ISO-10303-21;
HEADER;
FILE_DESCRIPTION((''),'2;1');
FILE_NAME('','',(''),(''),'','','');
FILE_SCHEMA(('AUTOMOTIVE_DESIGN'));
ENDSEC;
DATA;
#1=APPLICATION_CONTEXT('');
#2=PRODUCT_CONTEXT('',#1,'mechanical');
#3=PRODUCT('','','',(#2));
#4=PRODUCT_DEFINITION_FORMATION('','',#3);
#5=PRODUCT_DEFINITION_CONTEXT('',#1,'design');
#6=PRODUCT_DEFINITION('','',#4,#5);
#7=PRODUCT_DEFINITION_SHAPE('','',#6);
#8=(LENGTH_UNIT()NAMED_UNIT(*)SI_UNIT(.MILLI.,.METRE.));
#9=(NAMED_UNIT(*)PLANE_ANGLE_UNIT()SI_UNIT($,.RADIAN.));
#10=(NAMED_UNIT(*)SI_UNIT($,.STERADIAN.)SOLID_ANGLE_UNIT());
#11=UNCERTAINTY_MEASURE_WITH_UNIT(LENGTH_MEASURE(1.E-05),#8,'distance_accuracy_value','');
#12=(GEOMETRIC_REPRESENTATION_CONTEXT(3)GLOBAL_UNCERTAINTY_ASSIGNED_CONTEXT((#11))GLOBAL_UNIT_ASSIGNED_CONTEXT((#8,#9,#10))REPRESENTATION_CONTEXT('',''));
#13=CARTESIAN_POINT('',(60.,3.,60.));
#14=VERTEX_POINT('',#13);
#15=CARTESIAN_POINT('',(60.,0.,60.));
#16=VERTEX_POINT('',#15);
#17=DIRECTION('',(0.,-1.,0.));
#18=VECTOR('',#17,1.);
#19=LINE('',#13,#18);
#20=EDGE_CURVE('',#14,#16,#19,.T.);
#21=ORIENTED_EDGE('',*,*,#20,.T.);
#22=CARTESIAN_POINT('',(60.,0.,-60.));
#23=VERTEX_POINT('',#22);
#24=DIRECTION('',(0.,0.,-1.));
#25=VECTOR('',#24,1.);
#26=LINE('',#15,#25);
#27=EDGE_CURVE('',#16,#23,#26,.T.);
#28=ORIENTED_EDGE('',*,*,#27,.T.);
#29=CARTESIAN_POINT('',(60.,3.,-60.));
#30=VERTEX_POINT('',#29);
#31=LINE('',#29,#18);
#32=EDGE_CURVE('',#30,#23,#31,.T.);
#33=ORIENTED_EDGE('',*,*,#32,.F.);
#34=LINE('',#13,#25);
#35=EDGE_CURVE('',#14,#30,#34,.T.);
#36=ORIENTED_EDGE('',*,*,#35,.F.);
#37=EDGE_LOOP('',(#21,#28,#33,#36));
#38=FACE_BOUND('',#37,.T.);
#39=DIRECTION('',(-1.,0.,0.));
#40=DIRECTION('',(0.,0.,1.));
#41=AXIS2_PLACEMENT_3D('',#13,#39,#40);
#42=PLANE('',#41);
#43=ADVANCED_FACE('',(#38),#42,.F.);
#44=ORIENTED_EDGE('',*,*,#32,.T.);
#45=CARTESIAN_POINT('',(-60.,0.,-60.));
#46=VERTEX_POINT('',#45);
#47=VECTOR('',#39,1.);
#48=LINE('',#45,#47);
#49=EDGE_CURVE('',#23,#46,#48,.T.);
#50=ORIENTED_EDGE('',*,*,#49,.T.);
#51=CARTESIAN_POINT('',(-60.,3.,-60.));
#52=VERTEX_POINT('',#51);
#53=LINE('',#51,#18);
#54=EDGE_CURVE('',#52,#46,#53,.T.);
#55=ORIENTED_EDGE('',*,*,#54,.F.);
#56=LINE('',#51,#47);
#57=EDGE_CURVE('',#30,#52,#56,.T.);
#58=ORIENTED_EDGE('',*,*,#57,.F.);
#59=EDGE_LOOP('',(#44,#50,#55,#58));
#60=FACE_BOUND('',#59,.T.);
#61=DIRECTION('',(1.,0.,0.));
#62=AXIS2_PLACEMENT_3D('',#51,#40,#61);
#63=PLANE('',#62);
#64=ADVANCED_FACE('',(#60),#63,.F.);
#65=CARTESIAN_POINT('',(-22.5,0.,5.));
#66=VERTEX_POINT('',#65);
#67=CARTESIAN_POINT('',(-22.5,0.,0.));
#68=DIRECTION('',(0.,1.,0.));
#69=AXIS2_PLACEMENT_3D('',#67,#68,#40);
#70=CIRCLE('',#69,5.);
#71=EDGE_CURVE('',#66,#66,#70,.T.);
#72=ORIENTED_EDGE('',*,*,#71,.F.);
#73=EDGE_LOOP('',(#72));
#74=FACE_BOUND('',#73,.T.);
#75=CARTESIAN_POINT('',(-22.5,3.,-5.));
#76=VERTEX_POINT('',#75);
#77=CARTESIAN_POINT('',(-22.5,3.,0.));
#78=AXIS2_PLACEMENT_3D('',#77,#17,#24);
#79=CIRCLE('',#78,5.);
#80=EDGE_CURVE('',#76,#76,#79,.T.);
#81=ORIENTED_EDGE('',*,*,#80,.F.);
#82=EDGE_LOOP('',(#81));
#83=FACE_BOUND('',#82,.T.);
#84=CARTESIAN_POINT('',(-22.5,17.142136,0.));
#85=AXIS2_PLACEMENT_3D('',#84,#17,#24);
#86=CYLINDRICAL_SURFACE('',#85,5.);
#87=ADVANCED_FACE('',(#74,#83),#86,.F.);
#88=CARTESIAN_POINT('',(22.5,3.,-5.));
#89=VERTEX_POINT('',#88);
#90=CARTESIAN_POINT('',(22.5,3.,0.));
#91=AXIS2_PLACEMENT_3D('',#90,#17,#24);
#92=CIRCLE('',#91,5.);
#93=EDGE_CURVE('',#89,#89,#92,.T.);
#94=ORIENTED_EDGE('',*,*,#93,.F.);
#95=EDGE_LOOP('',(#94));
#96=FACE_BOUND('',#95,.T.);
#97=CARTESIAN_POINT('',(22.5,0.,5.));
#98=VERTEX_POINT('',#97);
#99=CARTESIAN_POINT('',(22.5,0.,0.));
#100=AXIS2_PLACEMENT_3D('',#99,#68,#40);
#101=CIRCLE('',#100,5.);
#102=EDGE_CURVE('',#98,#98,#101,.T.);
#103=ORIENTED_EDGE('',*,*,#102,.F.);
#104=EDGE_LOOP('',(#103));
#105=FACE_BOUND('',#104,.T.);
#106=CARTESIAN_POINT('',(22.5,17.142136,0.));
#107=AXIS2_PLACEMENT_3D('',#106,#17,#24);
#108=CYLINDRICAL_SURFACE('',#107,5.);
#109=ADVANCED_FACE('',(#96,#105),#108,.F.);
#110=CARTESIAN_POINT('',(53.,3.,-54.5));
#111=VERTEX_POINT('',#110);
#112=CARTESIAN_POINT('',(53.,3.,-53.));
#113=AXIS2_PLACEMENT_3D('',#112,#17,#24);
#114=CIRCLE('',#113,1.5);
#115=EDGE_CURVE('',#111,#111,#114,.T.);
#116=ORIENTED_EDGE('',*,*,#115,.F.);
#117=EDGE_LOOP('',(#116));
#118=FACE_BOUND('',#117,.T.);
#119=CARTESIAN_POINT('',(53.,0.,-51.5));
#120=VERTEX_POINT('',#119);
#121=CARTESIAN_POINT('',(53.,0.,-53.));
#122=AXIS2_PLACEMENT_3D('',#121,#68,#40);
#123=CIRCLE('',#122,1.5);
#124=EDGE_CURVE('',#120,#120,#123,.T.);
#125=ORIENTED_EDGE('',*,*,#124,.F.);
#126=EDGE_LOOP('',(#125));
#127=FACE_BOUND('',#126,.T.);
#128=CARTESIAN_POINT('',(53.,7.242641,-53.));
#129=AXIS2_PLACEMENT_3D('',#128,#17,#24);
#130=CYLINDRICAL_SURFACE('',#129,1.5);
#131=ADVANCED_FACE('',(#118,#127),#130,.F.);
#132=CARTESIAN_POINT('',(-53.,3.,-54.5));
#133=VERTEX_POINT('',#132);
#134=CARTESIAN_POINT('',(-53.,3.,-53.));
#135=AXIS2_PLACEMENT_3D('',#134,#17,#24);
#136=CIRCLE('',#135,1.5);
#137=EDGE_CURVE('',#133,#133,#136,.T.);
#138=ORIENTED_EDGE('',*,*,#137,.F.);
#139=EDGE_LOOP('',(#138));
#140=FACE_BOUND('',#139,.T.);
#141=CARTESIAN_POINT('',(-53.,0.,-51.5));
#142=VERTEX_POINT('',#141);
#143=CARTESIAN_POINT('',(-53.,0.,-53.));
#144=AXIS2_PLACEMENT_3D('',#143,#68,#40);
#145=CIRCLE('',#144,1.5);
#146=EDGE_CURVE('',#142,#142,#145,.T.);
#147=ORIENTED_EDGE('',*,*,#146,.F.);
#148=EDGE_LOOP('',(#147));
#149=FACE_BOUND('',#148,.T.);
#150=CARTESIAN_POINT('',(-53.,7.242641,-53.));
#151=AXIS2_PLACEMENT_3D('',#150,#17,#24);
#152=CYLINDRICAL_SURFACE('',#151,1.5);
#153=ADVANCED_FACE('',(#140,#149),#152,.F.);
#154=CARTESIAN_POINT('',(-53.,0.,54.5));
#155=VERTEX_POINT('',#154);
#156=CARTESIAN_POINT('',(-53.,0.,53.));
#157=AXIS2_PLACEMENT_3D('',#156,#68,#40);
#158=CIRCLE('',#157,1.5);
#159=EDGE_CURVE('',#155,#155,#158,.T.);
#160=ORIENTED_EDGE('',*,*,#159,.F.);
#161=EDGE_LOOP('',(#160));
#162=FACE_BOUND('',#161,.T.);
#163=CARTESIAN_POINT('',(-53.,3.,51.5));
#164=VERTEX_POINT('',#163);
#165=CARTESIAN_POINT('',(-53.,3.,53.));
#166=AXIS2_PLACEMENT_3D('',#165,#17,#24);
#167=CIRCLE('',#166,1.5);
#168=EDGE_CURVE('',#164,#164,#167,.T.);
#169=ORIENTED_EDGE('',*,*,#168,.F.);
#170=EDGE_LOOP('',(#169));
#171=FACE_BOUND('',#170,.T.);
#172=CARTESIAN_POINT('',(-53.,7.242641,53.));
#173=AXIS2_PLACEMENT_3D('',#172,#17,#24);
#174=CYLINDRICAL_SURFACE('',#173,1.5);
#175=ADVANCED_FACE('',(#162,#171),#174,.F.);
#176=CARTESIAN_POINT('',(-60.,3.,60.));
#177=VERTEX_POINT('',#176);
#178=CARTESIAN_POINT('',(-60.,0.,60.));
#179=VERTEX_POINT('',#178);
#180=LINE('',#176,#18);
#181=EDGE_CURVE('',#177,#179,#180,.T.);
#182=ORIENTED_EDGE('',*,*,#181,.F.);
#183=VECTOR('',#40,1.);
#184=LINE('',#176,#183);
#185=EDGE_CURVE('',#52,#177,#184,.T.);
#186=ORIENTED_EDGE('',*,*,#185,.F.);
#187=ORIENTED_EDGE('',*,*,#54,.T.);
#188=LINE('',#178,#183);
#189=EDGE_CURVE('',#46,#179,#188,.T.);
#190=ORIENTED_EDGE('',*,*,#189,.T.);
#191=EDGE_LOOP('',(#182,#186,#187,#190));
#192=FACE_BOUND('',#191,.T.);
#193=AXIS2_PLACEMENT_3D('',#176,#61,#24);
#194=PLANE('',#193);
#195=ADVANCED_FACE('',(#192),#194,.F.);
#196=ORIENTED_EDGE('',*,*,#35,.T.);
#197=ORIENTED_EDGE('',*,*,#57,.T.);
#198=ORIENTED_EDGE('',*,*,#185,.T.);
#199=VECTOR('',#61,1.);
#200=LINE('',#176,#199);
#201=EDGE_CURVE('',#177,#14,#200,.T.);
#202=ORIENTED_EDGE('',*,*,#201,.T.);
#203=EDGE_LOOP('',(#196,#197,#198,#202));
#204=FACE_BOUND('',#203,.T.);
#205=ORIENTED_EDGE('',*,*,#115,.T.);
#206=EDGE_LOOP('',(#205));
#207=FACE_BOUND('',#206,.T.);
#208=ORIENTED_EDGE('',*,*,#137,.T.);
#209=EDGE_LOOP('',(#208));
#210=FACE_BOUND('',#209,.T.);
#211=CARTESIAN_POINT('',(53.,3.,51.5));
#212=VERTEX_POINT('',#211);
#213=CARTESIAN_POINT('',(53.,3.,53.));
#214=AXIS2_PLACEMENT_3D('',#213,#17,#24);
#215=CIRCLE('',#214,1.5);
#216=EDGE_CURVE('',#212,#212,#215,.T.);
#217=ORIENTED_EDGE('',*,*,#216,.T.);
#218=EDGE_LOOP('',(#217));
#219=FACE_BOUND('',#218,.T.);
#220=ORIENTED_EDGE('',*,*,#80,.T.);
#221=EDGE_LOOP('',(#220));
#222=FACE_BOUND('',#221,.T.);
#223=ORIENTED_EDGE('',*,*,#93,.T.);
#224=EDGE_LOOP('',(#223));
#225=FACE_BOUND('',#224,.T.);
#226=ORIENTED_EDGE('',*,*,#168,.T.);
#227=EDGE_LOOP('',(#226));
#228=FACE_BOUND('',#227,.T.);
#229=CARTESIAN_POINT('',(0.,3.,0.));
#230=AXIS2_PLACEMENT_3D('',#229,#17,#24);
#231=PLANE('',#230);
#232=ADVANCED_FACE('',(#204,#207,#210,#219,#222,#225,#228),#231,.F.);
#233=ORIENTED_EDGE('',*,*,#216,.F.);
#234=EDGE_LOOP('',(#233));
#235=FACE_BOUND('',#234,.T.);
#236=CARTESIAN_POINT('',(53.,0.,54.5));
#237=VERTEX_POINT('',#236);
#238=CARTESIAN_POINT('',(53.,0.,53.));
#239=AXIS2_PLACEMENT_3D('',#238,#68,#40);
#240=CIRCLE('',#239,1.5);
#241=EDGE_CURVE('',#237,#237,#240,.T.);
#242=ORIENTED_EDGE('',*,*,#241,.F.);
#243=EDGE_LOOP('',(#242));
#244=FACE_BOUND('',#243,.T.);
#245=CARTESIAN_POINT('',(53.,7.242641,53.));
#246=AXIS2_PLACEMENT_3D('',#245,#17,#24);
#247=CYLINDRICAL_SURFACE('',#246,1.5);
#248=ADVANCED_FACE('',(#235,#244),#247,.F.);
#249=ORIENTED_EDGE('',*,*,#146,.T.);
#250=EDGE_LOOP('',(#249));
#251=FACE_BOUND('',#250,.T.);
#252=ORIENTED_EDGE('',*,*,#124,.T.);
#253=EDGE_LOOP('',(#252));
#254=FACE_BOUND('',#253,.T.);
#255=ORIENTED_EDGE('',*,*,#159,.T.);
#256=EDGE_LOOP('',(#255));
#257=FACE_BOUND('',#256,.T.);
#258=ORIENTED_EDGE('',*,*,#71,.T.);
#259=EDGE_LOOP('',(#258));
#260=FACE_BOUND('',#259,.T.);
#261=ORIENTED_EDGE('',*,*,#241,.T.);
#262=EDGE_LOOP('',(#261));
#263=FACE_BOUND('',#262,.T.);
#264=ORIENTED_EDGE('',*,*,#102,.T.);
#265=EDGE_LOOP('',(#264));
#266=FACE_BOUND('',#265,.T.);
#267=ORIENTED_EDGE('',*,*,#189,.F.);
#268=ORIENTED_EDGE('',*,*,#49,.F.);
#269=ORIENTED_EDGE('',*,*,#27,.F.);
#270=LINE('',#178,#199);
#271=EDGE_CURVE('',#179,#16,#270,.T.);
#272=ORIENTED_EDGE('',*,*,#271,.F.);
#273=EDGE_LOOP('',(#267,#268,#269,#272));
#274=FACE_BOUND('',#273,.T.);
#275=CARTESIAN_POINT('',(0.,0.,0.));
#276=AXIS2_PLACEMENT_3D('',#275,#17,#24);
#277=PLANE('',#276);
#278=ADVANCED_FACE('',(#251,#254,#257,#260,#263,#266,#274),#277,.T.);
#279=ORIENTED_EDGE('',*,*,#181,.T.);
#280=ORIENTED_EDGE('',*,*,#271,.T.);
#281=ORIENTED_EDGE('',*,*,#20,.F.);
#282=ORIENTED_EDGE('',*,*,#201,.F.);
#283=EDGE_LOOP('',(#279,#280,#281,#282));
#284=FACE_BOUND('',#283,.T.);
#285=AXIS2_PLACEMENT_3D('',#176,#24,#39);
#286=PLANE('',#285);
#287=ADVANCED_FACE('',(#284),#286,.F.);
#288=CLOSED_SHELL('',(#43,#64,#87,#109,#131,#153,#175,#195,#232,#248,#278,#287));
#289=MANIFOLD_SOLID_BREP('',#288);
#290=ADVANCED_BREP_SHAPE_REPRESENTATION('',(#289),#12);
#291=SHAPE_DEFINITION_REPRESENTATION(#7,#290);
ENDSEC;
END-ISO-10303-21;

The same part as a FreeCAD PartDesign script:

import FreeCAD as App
import Part
import Sketcher
from FreeCAD import Vector


def add_polygon(sketch, points):
    """Adds a closed chain of lines whose ends are joined by coincident constraints."""
    first, n = sketch.GeometryCount, len(points)
    for a, b in zip(points, points[1:] + points[:1]):
        sketch.addGeometry(Part.LineSegment(App.Vector(*a, 0), App.Vector(*b, 0)), False)
    for i in range(n):
        sketch.addConstraint(Sketcher.Constraint("Coincident", first + i, 2, first + (i + 1) % n, 1))

doc = App.newDocument("Part")
params = doc.addObject("Spreadsheet::Sheet", "Params")
for row, (alias, value) in enumerate([
    ("sketch1_width", "120 mm"),
    ("pad1_length", "3 mm"),
    ("sketch2_diameter", "10 mm"),
    ("pocket1_length", "3 mm"),
    ("sketch3_diameter", "3 mm"),
    ("pocket2_length", "3 mm"),
], start=1):
    params.set(f"A{row}", alias)
    params.set(f"B{row}", "=" + value)
    params.setAlias(f"B{row}", alias)

body = doc.addObject("PartDesign::Body", "Body")

sketch1 = body.newObject("Sketcher::SketchObject", "Sketch")
sketch1.AttachmentSupport = (doc.getObject("XZ_Plane"), [""])
sketch1.MapMode = "FlatFace"
add_polygon(sketch1, [(-60, -60), (-60, 60), (60, 60), (60, -60)])
sketch1.addConstraint(Sketcher.Constraint("Vertical", 0))
sketch1.addConstraint(Sketcher.Constraint("Horizontal", 1))
sketch1.addConstraint(Sketcher.Constraint("Vertical", 2))
sketch1.addConstraint(Sketcher.Constraint("Horizontal", 3))
sketch1.addConstraint(Sketcher.Constraint("Symmetric", 0, 2, 2, 2, -1, 1))
sketch1.addConstraint(Sketcher.Constraint("Equal", 3, 0))
sketch1.addConstraint(Sketcher.Constraint("DistanceX", 1, 1, 1, 2, 120.0))
sketch1.setExpression("Constraints[10]", "Params.sketch1_width")
pad1 = body.newObject("PartDesign::Pad", "Pad")
pad1.Profile = sketch1
pad1.setExpression("Length", "Params.pad1_length")
pad1.Reversed = True

sketch2 = body.newObject("Sketcher::SketchObject", "Sketch001")
sketch2.AttachmentSupport = (doc.getObject("XZ_Plane"), [""])
sketch2.MapMode = "FlatFace"
sketch2.addGeometry(Part.Circle(Vector(-22, 0, 0), Vector(0, 0, 1), 5), False)
sketch2.addGeometry(Part.Circle(Vector(22, 0, 0), Vector(0, 0, 1), 5), False)
sketch2.addConstraint(Sketcher.Constraint("Equal", 0, 1))
sketch2.addConstraint(Sketcher.Constraint("Symmetric", 0, 3, 1, 3, -1, 1))
sketch2.addConstraint(Sketcher.Constraint("PointOnObject", 0, 3, -1))
sketch2.addConstraint(Sketcher.Constraint("Diameter", 0, 10.0))
sketch2.addConstraint(Sketcher.Constraint("DistanceX", 0, 3, 1, 3, 45.0))
sketch2.setExpression("Constraints[3]", "Params.sketch2_diameter")
pocket1 = body.newObject("PartDesign::Pocket", "Pocket")
pocket1.Profile = sketch2
pocket1.setExpression("Length", "Params.pocket1_length")

sketch3 = body.newObject("Sketcher::SketchObject", "Sketch002")
sketch3.AttachmentSupport = (doc.getObject("XZ_Plane"), [""])
sketch3.MapMode = "FlatFace"
sketch3.addGeometry(Part.Circle(Vector(-53, -53, 0), Vector(0, 0, 1), 1.5), False)
sketch3.addGeometry(Part.Circle(Vector(53, -53, 0), Vector(0, 0, 1), 1.5), False)
sketch3.addGeometry(Part.Circle(Vector(-53, 53, 0), Vector(0, 0, 1), 1.5), False)
sketch3.addGeometry(Part.Circle(Vector(53, 53, 0), Vector(0, 0, 1), 1.5), False)
sketch3.addConstraint(Sketcher.Constraint("Equal", 0, 1))
sketch3.addConstraint(Sketcher.Constraint("Equal", 1, 2))
sketch3.addConstraint(Sketcher.Constraint("Equal", 2, 3))
sketch3.addConstraint(Sketcher.Constraint("Symmetric", 1, 3, 2, 3, -1, 1))
sketch3.addConstraint(Sketcher.Constraint("Symmetric", 0, 3, 3, 3, -1, 1))
sketch3.addConstraint(Sketcher.Constraint("Symmetric", 0, 3, 1, 3, -2))
sketch3.addConstraint(Sketcher.Constraint("Diameter", 0, 3.0))
sketch3.addConstraint(Sketcher.Constraint("DistanceX", 0, 3, -1, 1, 53.0))
sketch3.addConstraint(Sketcher.Constraint("DistanceY", 0, 3, -1, 1, 53.0))
sketch3.setExpression("Constraints[6]", "Params.sketch3_diameter")
pocket2 = body.newObject("PartDesign::Pocket", "Pocket001")
pocket2.Profile = sketch3
pocket2.setExpression("Length", "Params.pocket2_length")

doc.recompute()
